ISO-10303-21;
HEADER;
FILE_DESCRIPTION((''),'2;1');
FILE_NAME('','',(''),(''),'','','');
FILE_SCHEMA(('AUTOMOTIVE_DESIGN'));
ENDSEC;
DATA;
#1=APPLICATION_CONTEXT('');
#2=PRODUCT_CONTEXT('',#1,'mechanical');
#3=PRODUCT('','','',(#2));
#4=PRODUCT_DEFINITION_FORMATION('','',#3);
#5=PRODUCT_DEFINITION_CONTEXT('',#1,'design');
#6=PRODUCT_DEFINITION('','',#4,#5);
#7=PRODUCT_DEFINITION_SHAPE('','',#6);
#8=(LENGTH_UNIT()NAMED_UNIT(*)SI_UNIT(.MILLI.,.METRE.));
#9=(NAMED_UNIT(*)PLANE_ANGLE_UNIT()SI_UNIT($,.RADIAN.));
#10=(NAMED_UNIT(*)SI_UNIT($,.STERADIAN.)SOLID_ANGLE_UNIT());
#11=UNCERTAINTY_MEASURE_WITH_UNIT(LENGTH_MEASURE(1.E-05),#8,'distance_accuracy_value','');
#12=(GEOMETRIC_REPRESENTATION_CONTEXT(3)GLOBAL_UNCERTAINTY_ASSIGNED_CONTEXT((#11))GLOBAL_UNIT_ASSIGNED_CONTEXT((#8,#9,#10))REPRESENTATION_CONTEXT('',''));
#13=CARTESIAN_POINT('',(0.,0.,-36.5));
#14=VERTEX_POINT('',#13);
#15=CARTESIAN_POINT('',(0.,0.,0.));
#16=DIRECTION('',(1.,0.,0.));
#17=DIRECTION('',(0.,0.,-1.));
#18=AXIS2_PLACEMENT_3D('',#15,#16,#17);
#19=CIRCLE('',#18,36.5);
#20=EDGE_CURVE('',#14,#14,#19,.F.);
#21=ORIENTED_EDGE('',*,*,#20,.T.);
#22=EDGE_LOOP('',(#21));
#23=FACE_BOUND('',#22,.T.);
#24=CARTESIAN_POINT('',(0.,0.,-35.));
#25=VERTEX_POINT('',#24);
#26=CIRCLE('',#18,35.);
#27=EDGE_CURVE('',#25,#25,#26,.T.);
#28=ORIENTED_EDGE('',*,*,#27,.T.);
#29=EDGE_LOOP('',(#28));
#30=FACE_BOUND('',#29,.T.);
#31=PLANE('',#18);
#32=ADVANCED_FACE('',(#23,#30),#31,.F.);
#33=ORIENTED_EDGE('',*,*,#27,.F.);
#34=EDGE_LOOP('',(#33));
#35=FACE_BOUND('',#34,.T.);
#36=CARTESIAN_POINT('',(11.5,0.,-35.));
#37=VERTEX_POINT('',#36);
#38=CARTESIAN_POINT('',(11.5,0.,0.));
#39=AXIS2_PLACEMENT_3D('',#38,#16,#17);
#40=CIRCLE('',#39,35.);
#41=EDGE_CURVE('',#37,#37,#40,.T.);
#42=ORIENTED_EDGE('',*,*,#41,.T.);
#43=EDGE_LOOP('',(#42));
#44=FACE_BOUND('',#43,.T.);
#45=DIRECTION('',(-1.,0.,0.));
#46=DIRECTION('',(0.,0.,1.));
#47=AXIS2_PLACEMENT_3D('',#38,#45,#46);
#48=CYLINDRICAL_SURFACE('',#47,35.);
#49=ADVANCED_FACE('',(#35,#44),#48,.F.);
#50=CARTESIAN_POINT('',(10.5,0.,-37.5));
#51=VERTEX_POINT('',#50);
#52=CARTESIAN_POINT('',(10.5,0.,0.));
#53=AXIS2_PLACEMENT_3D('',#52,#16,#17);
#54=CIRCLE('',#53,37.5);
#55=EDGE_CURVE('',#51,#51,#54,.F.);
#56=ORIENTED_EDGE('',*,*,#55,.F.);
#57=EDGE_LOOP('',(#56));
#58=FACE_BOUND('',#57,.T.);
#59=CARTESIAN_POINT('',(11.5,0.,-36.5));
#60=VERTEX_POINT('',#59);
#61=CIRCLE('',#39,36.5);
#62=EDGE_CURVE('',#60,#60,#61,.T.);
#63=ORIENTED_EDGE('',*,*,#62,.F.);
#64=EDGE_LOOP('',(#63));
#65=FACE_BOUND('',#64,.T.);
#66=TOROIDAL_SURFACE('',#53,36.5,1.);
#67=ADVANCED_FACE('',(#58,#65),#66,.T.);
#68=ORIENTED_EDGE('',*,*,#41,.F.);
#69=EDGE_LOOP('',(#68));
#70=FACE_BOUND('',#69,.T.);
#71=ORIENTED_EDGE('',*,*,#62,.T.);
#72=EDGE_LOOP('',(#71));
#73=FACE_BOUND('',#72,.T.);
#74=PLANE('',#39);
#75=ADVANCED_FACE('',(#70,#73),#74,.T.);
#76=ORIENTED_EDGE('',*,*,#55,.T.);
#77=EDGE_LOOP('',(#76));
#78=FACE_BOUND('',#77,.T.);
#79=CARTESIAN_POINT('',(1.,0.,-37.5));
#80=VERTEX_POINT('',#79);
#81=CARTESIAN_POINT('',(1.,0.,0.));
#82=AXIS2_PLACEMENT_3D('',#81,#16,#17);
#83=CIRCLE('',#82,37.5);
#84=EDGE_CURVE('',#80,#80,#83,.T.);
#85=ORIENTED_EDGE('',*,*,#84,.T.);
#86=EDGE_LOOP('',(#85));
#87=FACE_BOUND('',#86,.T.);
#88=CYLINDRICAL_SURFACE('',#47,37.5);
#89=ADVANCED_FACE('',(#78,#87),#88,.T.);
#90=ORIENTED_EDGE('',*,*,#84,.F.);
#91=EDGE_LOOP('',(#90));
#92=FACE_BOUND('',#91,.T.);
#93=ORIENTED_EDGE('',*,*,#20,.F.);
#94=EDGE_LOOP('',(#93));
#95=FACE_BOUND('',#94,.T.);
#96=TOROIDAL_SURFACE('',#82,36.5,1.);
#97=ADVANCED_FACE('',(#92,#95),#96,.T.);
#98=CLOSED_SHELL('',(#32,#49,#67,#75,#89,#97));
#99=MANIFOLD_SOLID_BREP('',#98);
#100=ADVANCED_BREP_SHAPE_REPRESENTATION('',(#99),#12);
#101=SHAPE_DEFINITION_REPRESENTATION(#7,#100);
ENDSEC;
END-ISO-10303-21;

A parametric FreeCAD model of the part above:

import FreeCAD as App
import Part
import Sketcher
Q = App.Units.Quantity


def edges_at(feature, points):
    """Names of the edges that pass closest to the given points."""
    edges = feature.Shape.Edges
    near = lambda p: min(range(len(edges)), key=lambda i: edges[i].distToShape(Part.Vertex(*p))[0])
    return sorted({f"Edge{near(p) + 1}" for p in points})

doc = App.newDocument("Part")
params = doc.addObject("Spreadsheet::Sheet", "Params")
for row, (alias, value) in enumerate([
    ("sketch1_diameter", "75 mm"),
    ("sketch1_diameter2", "70 mm"),
    ("pad1_length", "11.5 mm"),
    ("fillet_radius", "1 mm"),
], start=1):
    params.set(f"A{row}", alias)
    params.set(f"B{row}", "=" + value)
    params.setAlias(f"B{row}", alias)

body = doc.addObject("PartDesign::Body", "Body")

# Sketch on YZ plane
sketch1 = body.newObject("Sketcher::SketchObject", "Sketch")
sketch1.AttachmentSupport = (doc.getObject("YZ_Plane"), [""])
sketch1.MapMode = "FlatFace"
sketch1.addGeometry(Part.Circle(App.Vector(0, 0, 0), App.Vector(0, 0, 1), 37.5), False)
sketch1.addGeometry(Part.Circle(App.Vector(0, 0, 0), App.Vector(0, 0, 1), 35), False)
sketch1.addConstraint(Sketcher.Constraint("Coincident", 0, 3, -1, 1))
sketch1.addConstraint(Sketcher.Constraint("Coincident", 1, 3, -1, 1))
sketch1.addConstraint(Sketcher.Constraint("Diameter", 0, Q("75 mm")))
sketch1.addConstraint(Sketcher.Constraint("Diameter", 1, Q("70 mm")))
sketch1.setExpression("Constraints[2]", "Params.sketch1_diameter")
sketch1.setExpression("Constraints[3]", "Params.sketch1_diameter2")
pad1 = body.newObject("PartDesign::Pad", "Pad")
pad1.Profile = sketch1
pad1.setExpression("Length", "Params.pad1_length")
doc.recompute()

fillet = body.newObject("PartDesign::Fillet", "Fillet")
fillet.Base = (pad1, edges_at(pad1, [(0, 0, 37.5), (11.5, 0, 37.5)]))
fillet.setExpression("Radius", "Params.fillet_radius")

doc.recompute()
